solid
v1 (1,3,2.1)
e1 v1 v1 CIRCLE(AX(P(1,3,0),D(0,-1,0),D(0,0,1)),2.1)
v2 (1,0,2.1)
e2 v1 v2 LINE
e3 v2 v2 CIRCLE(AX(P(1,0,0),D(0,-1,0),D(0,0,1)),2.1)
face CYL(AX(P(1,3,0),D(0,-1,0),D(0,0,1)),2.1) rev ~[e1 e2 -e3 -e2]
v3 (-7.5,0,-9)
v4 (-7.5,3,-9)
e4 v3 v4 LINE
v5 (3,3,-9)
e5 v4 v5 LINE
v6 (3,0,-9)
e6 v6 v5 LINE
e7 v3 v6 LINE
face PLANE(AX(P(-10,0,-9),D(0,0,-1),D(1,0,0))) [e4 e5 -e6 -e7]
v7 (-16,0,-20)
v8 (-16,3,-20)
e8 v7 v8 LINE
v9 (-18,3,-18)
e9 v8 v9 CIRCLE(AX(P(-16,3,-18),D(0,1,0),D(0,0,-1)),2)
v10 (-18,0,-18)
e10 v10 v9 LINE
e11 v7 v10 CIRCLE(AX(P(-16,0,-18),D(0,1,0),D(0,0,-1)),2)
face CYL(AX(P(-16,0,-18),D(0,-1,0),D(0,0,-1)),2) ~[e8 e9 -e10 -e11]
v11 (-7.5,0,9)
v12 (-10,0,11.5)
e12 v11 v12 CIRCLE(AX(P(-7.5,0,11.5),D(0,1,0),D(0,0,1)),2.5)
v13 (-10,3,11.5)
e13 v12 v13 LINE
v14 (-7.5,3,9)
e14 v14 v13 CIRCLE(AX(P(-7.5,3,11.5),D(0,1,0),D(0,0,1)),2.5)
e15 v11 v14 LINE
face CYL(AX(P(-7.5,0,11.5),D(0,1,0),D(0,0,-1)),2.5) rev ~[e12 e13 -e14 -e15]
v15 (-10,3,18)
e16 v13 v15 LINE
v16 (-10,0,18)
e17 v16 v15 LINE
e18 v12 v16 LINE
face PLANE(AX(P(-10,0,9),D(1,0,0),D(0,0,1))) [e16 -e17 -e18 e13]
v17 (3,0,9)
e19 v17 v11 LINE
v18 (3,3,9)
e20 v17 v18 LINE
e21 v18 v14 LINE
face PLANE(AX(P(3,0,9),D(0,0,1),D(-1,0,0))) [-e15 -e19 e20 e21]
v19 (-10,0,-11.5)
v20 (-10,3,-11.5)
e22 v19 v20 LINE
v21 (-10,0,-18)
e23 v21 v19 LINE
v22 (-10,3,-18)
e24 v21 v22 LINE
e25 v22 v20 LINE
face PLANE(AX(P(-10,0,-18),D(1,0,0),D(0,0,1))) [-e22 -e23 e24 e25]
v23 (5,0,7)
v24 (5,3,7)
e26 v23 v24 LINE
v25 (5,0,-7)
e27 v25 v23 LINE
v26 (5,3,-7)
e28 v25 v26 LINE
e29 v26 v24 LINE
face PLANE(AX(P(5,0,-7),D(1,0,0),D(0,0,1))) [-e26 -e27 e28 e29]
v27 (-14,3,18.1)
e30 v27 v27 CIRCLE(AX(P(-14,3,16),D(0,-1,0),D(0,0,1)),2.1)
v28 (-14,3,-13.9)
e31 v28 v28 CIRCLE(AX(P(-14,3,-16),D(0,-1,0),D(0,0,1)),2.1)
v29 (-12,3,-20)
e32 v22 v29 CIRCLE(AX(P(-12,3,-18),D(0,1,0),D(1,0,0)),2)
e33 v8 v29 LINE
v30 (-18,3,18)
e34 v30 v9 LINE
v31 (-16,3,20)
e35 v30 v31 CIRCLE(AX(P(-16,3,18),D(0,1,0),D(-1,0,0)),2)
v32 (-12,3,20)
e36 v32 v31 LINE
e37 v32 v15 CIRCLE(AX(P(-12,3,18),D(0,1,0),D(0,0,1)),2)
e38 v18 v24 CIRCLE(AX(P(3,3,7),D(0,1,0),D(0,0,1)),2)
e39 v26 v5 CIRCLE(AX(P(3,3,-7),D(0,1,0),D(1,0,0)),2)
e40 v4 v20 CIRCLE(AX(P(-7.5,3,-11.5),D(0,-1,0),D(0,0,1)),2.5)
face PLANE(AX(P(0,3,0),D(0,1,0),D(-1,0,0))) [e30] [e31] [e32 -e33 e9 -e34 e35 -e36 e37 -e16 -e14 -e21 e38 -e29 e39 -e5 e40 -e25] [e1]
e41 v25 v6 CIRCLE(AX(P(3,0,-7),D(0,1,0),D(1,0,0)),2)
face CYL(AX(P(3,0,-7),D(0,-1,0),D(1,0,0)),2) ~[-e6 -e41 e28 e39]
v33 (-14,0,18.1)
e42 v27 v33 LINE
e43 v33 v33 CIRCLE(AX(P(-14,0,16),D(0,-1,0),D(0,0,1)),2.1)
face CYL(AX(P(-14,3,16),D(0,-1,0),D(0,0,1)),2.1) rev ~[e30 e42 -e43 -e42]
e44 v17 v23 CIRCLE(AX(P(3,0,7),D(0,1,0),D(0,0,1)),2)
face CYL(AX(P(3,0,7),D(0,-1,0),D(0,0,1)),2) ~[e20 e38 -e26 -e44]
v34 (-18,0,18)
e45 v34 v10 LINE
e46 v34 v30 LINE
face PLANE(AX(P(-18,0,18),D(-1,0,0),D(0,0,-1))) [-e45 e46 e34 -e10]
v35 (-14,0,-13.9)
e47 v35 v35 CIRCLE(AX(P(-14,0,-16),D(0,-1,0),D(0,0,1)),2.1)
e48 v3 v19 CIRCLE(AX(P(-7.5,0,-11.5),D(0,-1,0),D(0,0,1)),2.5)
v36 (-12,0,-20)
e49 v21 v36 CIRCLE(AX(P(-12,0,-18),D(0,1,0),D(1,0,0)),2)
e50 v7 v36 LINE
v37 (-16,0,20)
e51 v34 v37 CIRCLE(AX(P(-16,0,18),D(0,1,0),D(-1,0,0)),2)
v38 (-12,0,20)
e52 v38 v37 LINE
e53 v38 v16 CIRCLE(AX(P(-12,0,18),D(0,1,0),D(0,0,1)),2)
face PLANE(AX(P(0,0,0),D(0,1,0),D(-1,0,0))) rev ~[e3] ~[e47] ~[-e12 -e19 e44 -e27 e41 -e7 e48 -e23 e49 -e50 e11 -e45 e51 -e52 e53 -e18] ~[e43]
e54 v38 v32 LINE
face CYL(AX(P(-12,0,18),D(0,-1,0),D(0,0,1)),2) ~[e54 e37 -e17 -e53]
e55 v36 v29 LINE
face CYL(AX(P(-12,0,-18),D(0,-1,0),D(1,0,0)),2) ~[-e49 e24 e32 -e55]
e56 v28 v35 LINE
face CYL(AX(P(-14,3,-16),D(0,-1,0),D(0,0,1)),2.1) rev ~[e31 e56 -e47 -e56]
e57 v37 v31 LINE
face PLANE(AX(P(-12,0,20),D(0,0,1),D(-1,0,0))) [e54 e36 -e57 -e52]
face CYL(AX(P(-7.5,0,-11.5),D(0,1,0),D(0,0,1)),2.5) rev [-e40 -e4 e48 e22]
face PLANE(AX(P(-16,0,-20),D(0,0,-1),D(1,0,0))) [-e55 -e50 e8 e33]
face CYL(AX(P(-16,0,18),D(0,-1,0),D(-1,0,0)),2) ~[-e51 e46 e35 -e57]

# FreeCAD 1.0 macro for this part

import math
import FreeCAD as App
import Part
import Sketcher


def edges_at(feature, points):
    """Names of the edges that pass closest to the given points."""
    edges = feature.Shape.Edges
    near = lambda p: min(range(len(edges)), key=lambda i: edges[i].distToShape(Part.Vertex(*p))[0])
    return sorted({f"Edge{near(p) + 1}" for p in points})

doc = App.newDocument("Part")
body = doc.addObject("PartDesign::Body", "Body")

sketch1 = body.newObject("Sketcher::SketchObject", "Sketch")
sketch1.AttachmentSupport = (doc.getObject("XZ_Plane"), [""])
sketch1.MapMode = "FlatFace"
sketch1.addGeometry([
    Part.LineSegment(App.Vector(-10, 9, 0), App.Vector(3, 9, 0)),
    Part.ArcOfCircle(Part.Circle(App.Vector(3, 7, 0), App.Vector(0, 0, 1), 2), math.radians(0), math.radians(90)),
    Part.LineSegment(App.Vector(5, 7, 0), App.Vector(5, -7, 0)),
    Part.ArcOfCircle(Part.Circle(App.Vector(3, -7, 0), App.Vector(0, 0, 1), 2), math.radians(-90), math.radians(0)),
    Part.LineSegment(App.Vector(3, -9, 0), App.Vector(-10, -9, 0)),
    Part.LineSegment(App.Vector(-10, -9, 0), App.Vector(-10, -18, 0)),
    Part.ArcOfCircle(Part.Circle(App.Vector(-12, -18, 0), App.Vector(0, 0, 1), 2), math.radians(-90), math.radians(0)),
    Part.LineSegment(App.Vector(-12, -20, 0), App.Vector(-16, -20, 0)),
    Part.ArcOfCircle(Part.Circle(App.Vector(-16, -18, 0), App.Vector(0, 0, 1), 2), math.radians(180), math.radians(270)),
    Part.LineSegment(App.Vector(-18, -18, 0), App.Vector(-18, 18, 0)),
    Part.ArcOfCircle(Part.Circle(App.Vector(-16, 18, 0), App.Vector(0, 0, 1), 2), math.radians(90), math.radians(180)),
    Part.LineSegment(App.Vector(-16, 20, 0), App.Vector(-12, 20, 0)),
    Part.ArcOfCircle(Part.Circle(App.Vector(-12, 18, 0), App.Vector(0, 0, 1), 2), math.radians(0), math.radians(90)),
    Part.LineSegment(App.Vector(-10, 18, 0), App.Vector(-10, 9, 0)),
], False)
sketch1.addConstraint([
    Sketcher.Constraint("Tangent", 0, 2, 1, 2),
    Sketcher.Constraint("Tangent", 1, 1, 2, 1),
    Sketcher.Constraint("Tangent", 2, 2, 3, 2),
    Sketcher.Constraint("Tangent", 3, 1, 4, 1),
    Sketcher.Constraint("Coincident", 4, 2, 5, 1),
    Sketcher.Constraint("Tangent", 5, 2, 6, 2),
    Sketcher.Constraint("Tangent", 6, 1, 7, 1),
    Sketcher.Constraint("Tangent", 7, 2, 8, 2),
    Sketcher.Constraint("Tangent", 8, 1, 9, 1),
    Sketcher.Constraint("Tangent", 9, 2, 10, 2),
    Sketcher.Constraint("Tangent", 10, 1, 11, 1),
    Sketcher.Constraint("Tangent", 11, 2, 12, 2),
    Sketcher.Constraint("Tangent", 12, 1, 13, 1),
    Sketcher.Constraint("Coincident", 13, 2, 0, 1),
    Sketcher.Constraint("Horizontal", 0),
    Sketcher.Constraint("Vertical", 2),
    Sketcher.Constraint("Horizontal", 4),
    Sketcher.Constraint("Vertical", 5),
    Sketcher.Constraint("Horizontal", 7),
    Sketcher.Constraint("Vertical", 9),
    Sketcher.Constraint("Horizontal", 11),
    Sketcher.Constraint("Vertical", 13),
    Sketcher.Constraint("Equal", 1, 3),
    Sketcher.Constraint("Equal", 3, 6),
    Sketcher.Constraint("Equal", 6, 8),
    Sketcher.Constraint("Equal", 8, 10),
    Sketcher.Constraint("Equal", 10, 12),
    Sketcher.Constraint("Symmetric", 6, 3, 12, 3, -1),
    Sketcher.Constraint("Equal", 5, 13),
    Sketcher.Constraint("Radius", 1, 2.0),
    Sketcher.Constraint("DistanceY", 5, 2, 5, 1, 9.0),
    Sketcher.Constraint("DistanceY", 6, 3, -1, 1, 18.0),
    Sketcher.Constraint("DistanceX", -1, 1, 1, 1, 5.0),
    Sketcher.Constraint("DistanceX", 4, 2, -1, 1, 10.0),
    Sketcher.Constraint("DistanceX", 8, 1, -1, 1, 18.0),
])
pad1 = body.newObject("PartDesign::Pad", "Pad")
pad1.Profile = sketch1
pad1.Length = 3
pad1.Reversed = True

sketch2 = body.newObject("Sketcher::SketchObject", "Sketch001")
sketch2.AttachmentSupport = (doc.getObject("XZ_Plane"), [""])
sketch2.MapMode = "FlatFace"
sketch2.AttachmentOffset = App.Placement(App.Vector(0, 0, -3), App.Rotation())
sketch2.addGeometry(Part.Circle(App.Vector(-14, 16, 0), App.Vector(0, 0, 1), 2.1), False)
sketch2.addConstraint([
    Sketcher.Constraint("Diameter", 0, 4.2),
    Sketcher.Constraint("DistanceX", 0, 3, -1, 1, 14.0),
    Sketcher.Constraint("DistanceY", -1, 1, 0, 3, 16.0),
])
doc.recompute()
hole = body.newObject("PartDesign::Hole", "Hole")
hole.Profile = sketch2
hole.ThreadType = "None"
hole.Diameter = 4.2
hole.DepthType = "ThroughAll"
hole.Reversed = True

sketch3 = body.newObject("Sketcher::SketchObject", "Sketch002")
sketch3.AttachmentSupport = (doc.getObject("XZ_Plane"), [""])
sketch3.MapMode = "FlatFace"
sketch3.AttachmentOffset = App.Placement(App.Vector(0, 0, -3), App.Rotation())
sketch3.addGeometry(Part.Circle(App.Vector(-14, -16, 0), App.Vector(0, 0, 1), 2.1), False)
sketch3.addConstraint([
    Sketcher.Constraint("Diameter", 0, 4.2),
    Sketcher.Constraint("DistanceX", 0, 3, -1, 1, 14.0),
    Sketcher.Constraint("DistanceY", 0, 3, -1, 1, 16.0),
])
doc.recompute()
hole2 = body.newObject("PartDesign::Hole", "Hole001")
hole2.Profile = sketch3
hole2.ThreadType = "None"
hole2.Diameter = 4.2
hole2.DepthType = "ThroughAll"
hole2.Reversed = True

sketch4 = body.newObject("Sketcher::SketchObject", "Sketch003")
sketch4.AttachmentSupport = (doc.getObject("XZ_Plane"), [""])
sketch4.MapMode = "FlatFace"
sketch4.AttachmentOffset = App.Placement(App.Vector(0, 0, -3), App.Rotation())
sketch4.addGeometry(Part.Circle(App.Vector(1, 0, 0), App.Vector(0, 0, 1), 2.1), False)
sketch4.addConstraint([
    Sketcher.Constraint("PointOnObject", 0, 3, -1),
    Sketcher.Constraint("Diameter", 0, 4.2),
    Sketcher.Constraint("DistanceX", -1, 1, 0, 3, 1.0),
])
doc.recompute()
hole3 = body.newObject("PartDesign::Hole", "Hole002")
hole3.Profile = sketch4
hole3.ThreadType = "None"
hole3.Diameter = 4.2
hole3.DepthType = "ThroughAll"
hole3.Reversed = True
doc.recompute()

fillet = body.newObject("PartDesign::Fillet", "Fillet")
fillet.Base = (hole3, edges_at(hole3, [(-10, 1.5, 9), (-10, 1.5, -9)]))
fillet.Radius = 2.5

doc.recompute()
